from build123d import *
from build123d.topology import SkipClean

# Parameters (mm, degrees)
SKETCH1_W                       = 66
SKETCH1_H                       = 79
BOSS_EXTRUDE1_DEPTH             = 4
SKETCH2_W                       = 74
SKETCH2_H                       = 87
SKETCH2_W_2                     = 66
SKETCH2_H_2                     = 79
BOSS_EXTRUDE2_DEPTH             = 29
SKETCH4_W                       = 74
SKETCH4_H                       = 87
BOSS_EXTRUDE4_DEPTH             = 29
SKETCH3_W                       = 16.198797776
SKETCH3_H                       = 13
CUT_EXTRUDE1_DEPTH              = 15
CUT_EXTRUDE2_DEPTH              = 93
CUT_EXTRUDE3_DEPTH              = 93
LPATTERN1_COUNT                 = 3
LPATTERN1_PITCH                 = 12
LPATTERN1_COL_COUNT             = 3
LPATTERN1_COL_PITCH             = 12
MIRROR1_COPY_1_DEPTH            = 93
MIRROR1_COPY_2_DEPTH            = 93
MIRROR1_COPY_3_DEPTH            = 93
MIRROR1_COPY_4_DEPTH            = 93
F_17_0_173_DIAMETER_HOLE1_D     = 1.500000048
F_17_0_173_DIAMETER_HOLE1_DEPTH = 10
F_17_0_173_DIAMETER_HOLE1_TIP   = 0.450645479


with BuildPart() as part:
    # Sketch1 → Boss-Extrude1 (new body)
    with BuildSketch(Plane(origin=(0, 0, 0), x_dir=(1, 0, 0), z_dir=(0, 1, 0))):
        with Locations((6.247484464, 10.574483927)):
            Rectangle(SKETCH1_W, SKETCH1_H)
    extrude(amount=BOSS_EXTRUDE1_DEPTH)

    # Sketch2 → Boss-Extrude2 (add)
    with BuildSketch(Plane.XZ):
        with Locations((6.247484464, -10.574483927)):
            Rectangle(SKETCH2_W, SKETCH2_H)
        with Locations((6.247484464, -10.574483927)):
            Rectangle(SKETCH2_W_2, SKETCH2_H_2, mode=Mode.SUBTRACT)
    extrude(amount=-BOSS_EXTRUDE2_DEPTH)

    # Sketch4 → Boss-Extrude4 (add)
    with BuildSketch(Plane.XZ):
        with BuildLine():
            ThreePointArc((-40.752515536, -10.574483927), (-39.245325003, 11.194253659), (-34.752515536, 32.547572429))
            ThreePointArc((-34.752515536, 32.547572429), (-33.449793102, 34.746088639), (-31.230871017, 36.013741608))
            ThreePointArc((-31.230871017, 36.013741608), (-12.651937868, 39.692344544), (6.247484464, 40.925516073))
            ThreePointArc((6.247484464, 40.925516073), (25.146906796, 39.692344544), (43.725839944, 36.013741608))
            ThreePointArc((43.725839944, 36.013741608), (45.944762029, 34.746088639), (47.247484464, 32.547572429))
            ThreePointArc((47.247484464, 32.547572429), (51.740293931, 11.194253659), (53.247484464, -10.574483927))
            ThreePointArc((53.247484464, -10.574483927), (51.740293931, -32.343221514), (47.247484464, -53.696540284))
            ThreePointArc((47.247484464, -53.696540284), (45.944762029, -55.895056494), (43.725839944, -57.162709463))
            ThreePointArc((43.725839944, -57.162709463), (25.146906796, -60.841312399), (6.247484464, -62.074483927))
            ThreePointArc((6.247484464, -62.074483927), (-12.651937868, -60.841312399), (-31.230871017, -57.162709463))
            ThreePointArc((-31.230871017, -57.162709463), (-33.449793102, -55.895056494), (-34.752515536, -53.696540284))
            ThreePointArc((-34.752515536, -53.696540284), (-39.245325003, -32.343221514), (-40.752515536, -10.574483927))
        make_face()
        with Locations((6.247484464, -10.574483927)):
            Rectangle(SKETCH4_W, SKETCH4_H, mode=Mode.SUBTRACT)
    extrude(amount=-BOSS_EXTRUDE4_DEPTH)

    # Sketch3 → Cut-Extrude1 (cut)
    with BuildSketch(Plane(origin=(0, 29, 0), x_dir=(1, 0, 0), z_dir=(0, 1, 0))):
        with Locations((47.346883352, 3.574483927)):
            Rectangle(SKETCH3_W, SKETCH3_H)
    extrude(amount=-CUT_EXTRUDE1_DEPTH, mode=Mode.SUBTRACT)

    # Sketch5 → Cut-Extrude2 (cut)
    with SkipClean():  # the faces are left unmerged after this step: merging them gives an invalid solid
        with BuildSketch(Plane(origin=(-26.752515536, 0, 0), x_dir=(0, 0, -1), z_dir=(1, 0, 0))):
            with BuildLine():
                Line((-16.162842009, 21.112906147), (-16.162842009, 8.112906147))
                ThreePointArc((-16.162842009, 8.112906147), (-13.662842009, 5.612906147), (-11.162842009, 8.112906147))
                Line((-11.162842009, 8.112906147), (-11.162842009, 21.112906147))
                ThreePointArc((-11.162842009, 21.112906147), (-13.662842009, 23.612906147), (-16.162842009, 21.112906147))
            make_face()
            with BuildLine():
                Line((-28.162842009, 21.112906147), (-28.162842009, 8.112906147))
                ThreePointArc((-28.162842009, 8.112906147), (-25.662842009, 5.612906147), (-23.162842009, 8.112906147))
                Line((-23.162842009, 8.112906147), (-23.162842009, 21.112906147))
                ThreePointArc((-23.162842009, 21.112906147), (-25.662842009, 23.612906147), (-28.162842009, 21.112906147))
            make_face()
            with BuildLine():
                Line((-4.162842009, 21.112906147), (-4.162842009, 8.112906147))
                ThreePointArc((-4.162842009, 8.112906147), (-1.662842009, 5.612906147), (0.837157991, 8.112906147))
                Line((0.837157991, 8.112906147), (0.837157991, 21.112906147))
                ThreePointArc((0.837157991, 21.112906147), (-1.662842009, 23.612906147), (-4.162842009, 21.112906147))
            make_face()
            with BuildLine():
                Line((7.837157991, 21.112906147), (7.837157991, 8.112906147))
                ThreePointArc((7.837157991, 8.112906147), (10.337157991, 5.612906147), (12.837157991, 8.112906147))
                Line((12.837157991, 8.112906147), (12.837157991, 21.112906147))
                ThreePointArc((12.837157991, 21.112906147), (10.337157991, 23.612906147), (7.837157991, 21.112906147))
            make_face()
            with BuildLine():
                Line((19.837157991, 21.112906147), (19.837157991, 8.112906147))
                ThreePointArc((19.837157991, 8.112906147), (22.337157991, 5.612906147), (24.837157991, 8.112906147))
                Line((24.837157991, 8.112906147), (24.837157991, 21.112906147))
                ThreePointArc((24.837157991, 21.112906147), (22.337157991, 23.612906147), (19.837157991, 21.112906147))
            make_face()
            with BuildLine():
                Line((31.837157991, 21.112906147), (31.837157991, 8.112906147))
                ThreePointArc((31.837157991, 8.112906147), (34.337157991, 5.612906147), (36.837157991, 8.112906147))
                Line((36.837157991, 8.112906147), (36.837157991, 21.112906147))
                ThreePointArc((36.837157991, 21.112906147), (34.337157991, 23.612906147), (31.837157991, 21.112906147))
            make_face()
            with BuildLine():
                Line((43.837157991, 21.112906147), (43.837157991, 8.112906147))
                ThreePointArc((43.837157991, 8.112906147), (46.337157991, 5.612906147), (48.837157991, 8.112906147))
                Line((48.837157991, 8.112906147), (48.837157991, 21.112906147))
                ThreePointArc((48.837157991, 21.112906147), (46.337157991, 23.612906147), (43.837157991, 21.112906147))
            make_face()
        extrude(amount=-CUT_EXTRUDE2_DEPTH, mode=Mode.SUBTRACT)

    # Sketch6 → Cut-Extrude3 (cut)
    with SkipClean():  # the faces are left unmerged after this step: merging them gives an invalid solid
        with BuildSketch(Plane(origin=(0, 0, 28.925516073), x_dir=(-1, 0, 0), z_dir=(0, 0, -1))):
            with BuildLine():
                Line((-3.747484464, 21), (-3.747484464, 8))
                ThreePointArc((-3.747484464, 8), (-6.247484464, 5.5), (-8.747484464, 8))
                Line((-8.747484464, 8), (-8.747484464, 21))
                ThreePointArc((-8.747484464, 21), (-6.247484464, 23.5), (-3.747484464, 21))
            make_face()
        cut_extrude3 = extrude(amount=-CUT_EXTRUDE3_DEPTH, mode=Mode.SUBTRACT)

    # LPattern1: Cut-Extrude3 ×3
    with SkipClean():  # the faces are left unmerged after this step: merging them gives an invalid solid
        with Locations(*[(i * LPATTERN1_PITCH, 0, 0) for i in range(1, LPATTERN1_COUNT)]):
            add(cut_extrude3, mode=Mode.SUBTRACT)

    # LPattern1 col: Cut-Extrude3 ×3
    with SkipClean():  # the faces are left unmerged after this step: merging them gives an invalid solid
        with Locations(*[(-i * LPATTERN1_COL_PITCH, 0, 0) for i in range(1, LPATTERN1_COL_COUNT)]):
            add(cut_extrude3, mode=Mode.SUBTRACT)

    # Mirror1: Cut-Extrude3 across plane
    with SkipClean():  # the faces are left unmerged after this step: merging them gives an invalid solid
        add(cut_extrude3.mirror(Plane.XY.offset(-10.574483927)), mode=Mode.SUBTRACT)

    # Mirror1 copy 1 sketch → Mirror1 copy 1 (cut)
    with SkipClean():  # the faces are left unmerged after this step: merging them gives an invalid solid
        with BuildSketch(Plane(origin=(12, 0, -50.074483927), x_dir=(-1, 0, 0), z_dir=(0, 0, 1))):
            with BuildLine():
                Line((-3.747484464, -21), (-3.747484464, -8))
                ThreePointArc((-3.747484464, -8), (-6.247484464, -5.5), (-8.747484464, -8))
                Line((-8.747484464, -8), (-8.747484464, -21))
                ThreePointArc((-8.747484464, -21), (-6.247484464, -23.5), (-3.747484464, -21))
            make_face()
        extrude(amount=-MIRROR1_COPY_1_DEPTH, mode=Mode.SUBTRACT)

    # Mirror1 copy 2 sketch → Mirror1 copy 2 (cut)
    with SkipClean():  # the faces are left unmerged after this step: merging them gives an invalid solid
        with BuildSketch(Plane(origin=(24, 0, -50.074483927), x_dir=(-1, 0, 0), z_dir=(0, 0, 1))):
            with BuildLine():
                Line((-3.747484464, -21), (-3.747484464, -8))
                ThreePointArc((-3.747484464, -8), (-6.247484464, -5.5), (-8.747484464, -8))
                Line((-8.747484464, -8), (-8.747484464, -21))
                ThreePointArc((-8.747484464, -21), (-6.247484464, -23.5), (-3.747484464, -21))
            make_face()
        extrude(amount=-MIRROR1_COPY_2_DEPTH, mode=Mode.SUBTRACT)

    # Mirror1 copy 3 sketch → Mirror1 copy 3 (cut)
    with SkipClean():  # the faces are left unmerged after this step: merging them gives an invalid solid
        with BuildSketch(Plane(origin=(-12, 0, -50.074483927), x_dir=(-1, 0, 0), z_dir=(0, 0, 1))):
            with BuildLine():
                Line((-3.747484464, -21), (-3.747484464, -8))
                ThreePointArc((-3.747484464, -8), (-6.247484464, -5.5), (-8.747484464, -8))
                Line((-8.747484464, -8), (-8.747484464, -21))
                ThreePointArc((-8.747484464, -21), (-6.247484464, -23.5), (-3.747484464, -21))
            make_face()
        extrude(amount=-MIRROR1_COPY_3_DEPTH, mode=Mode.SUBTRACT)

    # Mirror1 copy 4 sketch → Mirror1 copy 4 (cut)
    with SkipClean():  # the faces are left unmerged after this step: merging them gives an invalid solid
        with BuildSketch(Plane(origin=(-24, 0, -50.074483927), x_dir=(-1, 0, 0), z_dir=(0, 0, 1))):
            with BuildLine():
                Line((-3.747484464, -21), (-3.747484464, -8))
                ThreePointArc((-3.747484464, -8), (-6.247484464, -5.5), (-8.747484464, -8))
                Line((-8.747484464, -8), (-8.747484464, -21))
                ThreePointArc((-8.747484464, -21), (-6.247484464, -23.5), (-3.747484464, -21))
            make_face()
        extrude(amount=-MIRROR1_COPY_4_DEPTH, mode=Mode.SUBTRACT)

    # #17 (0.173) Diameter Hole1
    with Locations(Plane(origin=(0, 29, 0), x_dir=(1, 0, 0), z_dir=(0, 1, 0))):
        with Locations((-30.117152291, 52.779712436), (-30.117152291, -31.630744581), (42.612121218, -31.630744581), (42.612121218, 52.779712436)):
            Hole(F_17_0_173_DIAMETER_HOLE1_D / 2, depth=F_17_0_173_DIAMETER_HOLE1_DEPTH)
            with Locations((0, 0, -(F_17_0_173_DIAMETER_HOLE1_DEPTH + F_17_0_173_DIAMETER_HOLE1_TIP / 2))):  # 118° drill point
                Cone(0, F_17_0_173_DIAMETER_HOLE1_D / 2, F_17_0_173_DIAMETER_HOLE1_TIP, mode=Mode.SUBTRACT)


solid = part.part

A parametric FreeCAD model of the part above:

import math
import FreeCAD as App
import Part
import Sketcher

V = App.Vector

doc = App.newDocument("Part")
body = doc.addObject("PartDesign::Body", "Body")

sketch1 = body.newObject("Sketcher::SketchObject", "Sketch")
sketch1.AttachmentSupport = (doc.getObject("XZ_Plane"), [""])
sketch1.MapMode = "FlatFace"
sketch1.addGeometry([
    Part.LineSegment(V(-26.752516, -50.074484, 0), V(-26.752516, 28.925516, 0)),
    Part.LineSegment(V(-26.752516, 28.925516, 0), V(39.247484, 28.925516, 0)),
    Part.LineSegment(V(39.247484, 28.925516, 0), V(39.247484, -50.074484, 0)),
    Part.LineSegment(V(39.247484, -50.074484, 0), V(-26.752516, -50.074484, 0)),
], False)
sketch1.addConstraint([
    Sketcher.Constraint("Coincident", 0, 2, 1, 1),
    Sketcher.Constraint("Coincident", 1, 2, 2, 1),
    Sketcher.Constraint("Coincident", 2, 2, 3, 1),
    Sketcher.Constraint("Coincident", 3, 2, 0, 1),
    Sketcher.Constraint("Vertical", 0),
    Sketcher.Constraint("Horizontal", 1),
    Sketcher.Constraint("Vertical", 2),
    Sketcher.Constraint("Horizontal", 3),
    Sketcher.Constraint("DistanceX", 1, 1, 1, 2, 66.0),
    Sketcher.Constraint("DistanceY", 0, 1, 0, 2, 79.0),
    Sketcher.Constraint("DistanceX", 0, 2, -1, 1, 26.752516),
    Sketcher.Constraint("DistanceY", -1, 1, 0, 2, 28.925516),
])
pad1 = body.newObject("PartDesign::Pad", "Pad")
pad1.Profile = sketch1
pad1.Length = 4
pad1.Reversed = True

sketch2 = body.newObject("Sketcher::SketchObject", "Sketch001")
sketch2.AttachmentSupport = (doc.getObject("XZ_Plane"), [""])
sketch2.MapMode = "FlatFace"
sketch2.addGeometry([
    Part.LineSegment(V(-30.752516, 32.925516, 0), V(-30.752516, -54.074484, 0)),
    Part.LineSegment(V(-30.752516, -54.074484, 0), V(43.247484, -54.074484, 0)),
    Part.LineSegment(V(43.247484, -54.074484, 0), V(43.247484, 32.925516, 0)),
    Part.LineSegment(V(43.247484, 32.925516, 0), V(-30.752516, 32.925516, 0)),
    Part.LineSegment(V(39.247484, -50.074484, 0), V(-26.752516, -50.074484, 0)),
    Part.LineSegment(V(-26.752516, -50.074484, 0), V(-26.752516, 28.925516, 0)),
    Part.LineSegment(V(-26.752516, 28.925516, 0), V(39.247484, 28.925516, 0)),
    Part.LineSegment(V(39.247484, 28.925516, 0), V(39.247484, -50.074484, 0)),
], False)
sketch2.addConstraint([
    Sketcher.Constraint("Coincident", 0, 2, 1, 1),
    Sketcher.Constraint("Coincident", 1, 2, 2, 1),
    Sketcher.Constraint("Coincident", 2, 2, 3, 1),
    Sketcher.Constraint("Coincident", 3, 2, 0, 1),
    Sketcher.Constraint("Coincident", 4, 2, 5, 1),
    Sketcher.Constraint("Coincident", 5, 2, 6, 1),
    Sketcher.Constraint("Coincident", 6, 2, 7, 1),
    Sketcher.Constraint("Coincident", 7, 2, 4, 1),
    Sketcher.Constraint("Vertical", 0),
    Sketcher.Constraint("Horizontal", 1),
    Sketcher.Constraint("Vertical", 2),
    Sketcher.Constraint("Horizontal", 3),
    Sketcher.Constraint("Horizontal", 4),
    Sketcher.Constraint("Vertical", 5),
    Sketcher.Constraint("Horizontal", 6),
    Sketcher.Constraint("Vertical", 7),
    Sketcher.Constraint("DistanceX", 1, 1, 1, 2, 74.0),
    Sketcher.Constraint("DistanceX", 4, 2, 4, 1, 66.0),
    Sketcher.Constraint("DistanceY", 0, 2, 0, 1, 87.0),
    Sketcher.Constraint("DistanceY", 5, 1, 5, 2, 79.0),
    Sketcher.Constraint("DistanceX", 0, 2, 4, 2, 4.0),
    Sketcher.Constraint("DistanceY", 0, 2, 4, 2, 4.0),
    Sketcher.Constraint("DistanceX", 0, 2, -1, 1, 30.752516),
    Sketcher.Constraint("DistanceY", 0, 2, -1, 1, 54.074484),
])
pad2 = body.newObject("PartDesign::Pad", "Pad001")
pad2.Profile = sketch2
pad2.Length = 29
pad2.Reversed = True

sketch3 = body.newObject("Sketcher::SketchObject", "Sketch002")
sketch3.AttachmentSupport = (doc.getObject("XZ_Plane"), [""])
sketch3.MapMode = "FlatFace"
sketch3.addGeometry([
    Part.ArcOfCircle(Part.Circle(V(117.206796, -10.574484, 0), V(0, 0, 1), 157.959312), math.radians(164.157453), math.radians(180)),
    Part.ArcOfCircle(Part.Circle(V(117.206796, -10.574484, 0), V(0, 0, 1), 157.959312), math.radians(180), math.radians(195.842547)),
    Part.ArcOfCircle(Part.Circle(V(-29.942438, -52.331567, 0), V(0, 0, 1), 5), math.radians(-164.157453), math.radians(-104.932839)),
    Part.ArcOfCircle(Part.Circle(V(6.247484, 83.367114, 0), V(0, 0, 1), 145.441598), math.radians(-104.932839), math.radians(-90)),
    Part.ArcOfCircle(Part.Circle(V(6.247484, 83.367114, 0), V(0, 0, 1), 145.441598), math.radians(-90), math.radians(-75.067161)),
    Part.ArcOfCircle(Part.Circle(V(42.437407, -52.331567, 0), V(0, 0, 1), 5), math.radians(-75.067161), math.radians(-15.842548)),
    Part.ArcOfCircle(Part.Circle(V(-104.711828, -10.574484, 0), V(0, 0, 1), 157.959312), math.radians(-15.842547), math.radians(0)),
    Part.ArcOfCircle(Part.Circle(V(-104.711828, -10.574484, 0), V(0, 0, 1), 157.959312), math.radians(0), math.radians(15.842547)),
    Part.ArcOfCircle(Part.Circle(V(42.437407, 31.182599, 0), V(0, 0, 1), 5), math.radians(15.842548), math.radians(75.067161)),
    Part.ArcOfCircle(Part.Circle(V(6.247484, -104.516082, 0), V(0, 0, 1), 145.441598), math.radians(75.067161), math.radians(90)),
    Part.ArcOfCircle(Part.Circle(V(6.247484, -104.516082, 0), V(0, 0, 1), 145.441598), math.radians(90), math.radians(104.932839)),
    Part.ArcOfCircle(Part.Circle(V(-29.942438, 31.182599, 0), V(0, 0, 1), 5), math.radians(104.932839), math.radians(164.157453)),
    Part.LineSegment(V(-30.752516, -54.074484, 0), V(-30.752516, 32.925516, 0)),
    Part.LineSegment(V(-30.752516, 32.925516, 0), V(43.247484, 32.925516, 0)),
    Part.LineSegment(V(43.247484, 32.925516, 0), V(43.247484, -54.074484, 0)),
    Part.LineSegment(V(43.247484, -54.074484, 0), V(-30.752516, -54.074484, 0)),
], False)
sketch3.addConstraint([
    Sketcher.Constraint("Tangent", 0, 2, 1, 1),
    Sketcher.Constraint("Tangent", 1, 2, 2, 1),
    Sketcher.Constraint("Tangent", 2, 2, 3, 1),
    Sketcher.Constraint("Tangent", 3, 2, 4, 1),
    Sketcher.Constraint("Tangent", 4, 2, 5, 1),
    Sketcher.Constraint("Tangent", 5, 2, 6, 1),
    Sketcher.Constraint("Tangent", 6, 2, 7, 1),
    Sketcher.Constraint("Tangent", 7, 2, 8, 1),
    Sketcher.Constraint("Tangent", 8, 2, 9, 1),
    Sketcher.Constraint("Tangent", 9, 2, 10, 1),
    Sketcher.Constraint("Tangent", 10, 2, 11, 1),
    Sketcher.Constraint("Tangent", 11, 2, 0, 1),
    Sketcher.Constraint("Coincident", 12, 2, 13, 1),
    Sketcher.Constraint("Coincident", 13, 2, 14, 1),
    Sketcher.Constraint("Coincident", 14, 2, 15, 1),
    Sketcher.Constraint("Coincident", 15, 2, 12, 1),
    Sketcher.Constraint("Vertical", 12),
    Sketcher.Constraint("Horizontal", 13),
    Sketcher.Constraint("Vertical", 14),
    Sketcher.Constraint("Horizontal", 15),
    Sketcher.Constraint("Equal", 0, 1),
    Sketcher.Constraint("Equal", 3, 4),
    Sketcher.Constraint("Equal", 2, 5),
    Sketcher.Constraint("Equal", 1, 6),
    Sketcher.Constraint("Equal", 6, 7),
    Sketcher.Constraint("Equal", 5, 8),
    Sketcher.Constraint("Equal", 4, 9),
    Sketcher.Constraint("Equal", 9, 10),
    Sketcher.Constraint("Equal", 8, 11),
    Sketcher.Constraint("Horizontal", 2, 3, 5, 3),
    Sketcher.Constraint("Horizontal", 1, 3, 6, 3),
    Sketcher.Constraint("Horizontal", 8, 3, 11, 3),
    Sketcher.Constraint("Horizontal", 7, 3, 0, 2),
    Sketcher.Constraint("Horizontal", 0, 2, 6, 2),
    Sketcher.Constraint("Vertical", 5, 3, 8, 3),
    Sketcher.Constraint("Vertical", 10, 3, 3, 2),
    Sketcher.Constraint("Vertical", 3, 2, 9, 2),
    Sketcher.Constraint("Radius", 2, 5.0),
    Sketcher.Constraint("DistanceX", 13, 1, 13, 2, 74.0),
    Sketcher.Constraint("DistanceY", 12, 1, 12, 2, 87.0),
    Sketcher.Constraint("DistanceX", 0, 2, 1, 2, 6.0),
    Sketcher.Constraint("DistanceX", 1, 2, 9, 3, 41.0),
    Sketcher.Constraint("DistanceX", 11, 2, 12, 2, 4.0),
    Sketcher.Constraint("DistanceY", 12, 2, 9, 2, 8.0),
    Sketcher.Constraint("DistanceY", 3, 2, 14, 2, 8.0),
    Sketcher.Constraint("Radius", 3, 145.441598),
    Sketcher.Constraint("DistanceY", -1, 1, 8, 3, 31.182599),
    Sketcher.Constraint("DistanceX", 2, 2, -1, 1, 31.230871),
])
pad3 = body.newObject("PartDesign::Pad", "Pad002")
pad3.Profile = sketch3
pad3.Length = 29
pad3.Reversed = True

sketch4 = body.newObject("Sketcher::SketchObject", "Sketch003")
sketch4.AttachmentSupport = (doc.getObject("XZ_Plane"), [""])
sketch4.MapMode = "FlatFace"
sketch4.AttachmentOffset = App.Placement(V(0, 0, -29), App.Rotation())
sketch4.addGeometry([
    Part.LineSegment(V(39.247484, -10.074484, 0), V(39.247484, 2.925516, 0)),
    Part.LineSegment(V(39.247484, 2.925516, 0), V(55.446282, 2.925516, 0)),
    Part.LineSegment(V(55.446282, 2.925516, 0), V(55.446282, -10.074484, 0)),
    Part.LineSegment(V(55.446282, -10.074484, 0), V(39.247484, -10.074484, 0)),
], False)
sketch4.addConstraint([
    Sketcher.Constraint("Coincident", 0, 2, 1, 1),
    Sketcher.Constraint("Coincident", 1, 2, 2, 1),
    Sketcher.Constraint("Coincident", 2, 2, 3, 1),
    Sketcher.Constraint("Coincident", 3, 2, 0, 1),
    Sketcher.Constraint("Vertical", 0),
    Sketcher.Constraint("Horizontal", 1),
    Sketcher.Constraint("Vertical", 2),
    Sketcher.Constraint("Horizontal", 3),
    Sketcher.Constraint("DistanceY", 0, 1, 0, 2, 13.0),
    Sketcher.Constraint("DistanceX", 1, 1, 1, 2, 16.198798),
    Sketcher.Constraint("DistanceX", -1, 1, 0, 2, 39.247484),
    Sketcher.Constraint("DistanceY", -1, 1, 0, 2, 2.925516),
])
pocket1 = body.newObject("PartDesign::Pocket", "Pocket")
pocket1.Profile = sketch4
pocket1.Length = 15
pocket1.Reversed = True

sketch5 = body.newObject("Sketcher::SketchObject", "Sketch004")
sketch5.AttachmentSupport = (doc.getObject("YZ_Plane"), [""])
sketch5.MapMode = "FlatFace"
sketch5.AttachmentOffset = App.Placement(V(0, 0, -26.752516), App.Rotation())
sketch5.addGeometry([
    Part.LineSegment(V(21.112906, 16.162842, 0), V(8.112906, 16.162842, 0)),
    Part.ArcOfCircle(Part.Circle(V(8.112906, 13.662842, 0), V(0, 0, 1), 2.5), math.radians(90), math.radians(270)),
    Part.LineSegment(V(8.112906, 11.162842, 0), V(21.112906, 11.162842, 0)),
    Part.ArcOfCircle(Part.Circle(V(21.112906, 13.662842, 0), V(0, 0, 1), 2.5), math.radians(-90), math.radians(90)),
    Part.LineSegment(V(21.112906, 28.162842, 0), V(8.112906, 28.162842, 0)),
    Part.ArcOfCircle(Part.Circle(V(8.112906, 25.662842, 0), V(0, 0, 1), 2.5), math.radians(90), math.radians(270)),
    Part.LineSegment(V(8.112906, 23.162842, 0), V(21.112906, 23.162842, 0)),
    Part.ArcOfCircle(Part.Circle(V(21.112906, 25.662842, 0), V(0, 0, 1), 2.5), math.radians(-90), math.radians(90)),
    Part.LineSegment(V(21.112906, 4.162842, 0), V(8.112906, 4.162842, 0)),
    Part.ArcOfCircle(Part.Circle(V(8.112906, 1.662842, 0), V(0, 0, 1), 2.5), math.radians(90), math.radians(270)),
    Part.LineSegment(V(8.112906, -0.837158, 0), V(21.112906, -0.837158, 0)),
    Part.ArcOfCircle(Part.Circle(V(21.112906, 1.662842, 0), V(0, 0, 1), 2.5), math.radians(-90), math.radians(90)),
    Part.LineSegment(V(21.112906, -7.837158, 0), V(8.112906, -7.837158, 0)),
    Part.ArcOfCircle(Part.Circle(V(8.112906, -10.337158, 0), V(0, 0, 1), 2.5), math.radians(90), math.radians(270)),
    Part.LineSegment(V(8.112906, -12.837158, 0), V(21.112906, -12.837158, 0)),
    Part.ArcOfCircle(Part.Circle(V(21.112906, -10.337158, 0), V(0, 0, 1), 2.5), math.radians(-90), math.radians(90)),
    Part.LineSegment(V(21.112906, -19.837158, 0), V(8.112906, -19.837158, 0)),
    Part.ArcOfCircle(Part.Circle(V(8.112906, -22.337158, 0), V(0, 0, 1), 2.5), math.radians(90), math.radians(270)),
    Part.LineSegment(V(8.112906, -24.837158, 0), V(21.112906, -24.837158, 0)),
    Part.ArcOfCircle(Part.Circle(V(21.112906, -22.337158, 0), V(0, 0, 1), 2.5), math.radians(-90), math.radians(90)),
    Part.LineSegment(V(21.112906, -31.837158, 0), V(8.112906, -31.837158, 0)),
    Part.ArcOfCircle(Part.Circle(V(8.112906, -34.337158, 0), V(0, 0, 1), 2.5), math.radians(90), math.radians(270)),
    Part.LineSegment(V(8.112906, -36.837158, 0), V(21.112906, -36.837158, 0)),
    Part.ArcOfCircle(Part.Circle(V(21.112906, -34.337158, 0), V(0, 0, 1), 2.5), math.radians(-90), math.radians(90)),
    Part.LineSegment(V(21.112906, -43.837158, 0), V(8.112906, -43.837158, 0)),
    Part.ArcOfCircle(Part.Circle(V(8.112906, -46.337158, 0), V(0, 0, 1), 2.5), math.radians(90), math.radians(270)),
    Part.LineSegment(V(8.112906, -48.837158, 0), V(21.112906, -48.837158, 0)),
    Part.ArcOfCircle(Part.Circle(V(21.112906, -46.337158, 0), V(0, 0, 1), 2.5), math.radians(-90), math.radians(90)),
], False)
sketch5.addConstraint([
    Sketcher.Constraint("Tangent", 0, 2, 1, 1),
    Sketcher.Constraint("Tangent", 1, 2, 2, 1),
    Sketcher.Constraint("Tangent", 2, 2, 3, 1),
    Sketcher.Constraint("Tangent", 3, 2, 0, 1),
    Sketcher.Constraint("Tangent", 4, 2, 5, 1),
    Sketcher.Constraint("Tangent", 5, 2, 6, 1),
    Sketcher.Constraint("Tangent", 6, 2, 7, 1),
    Sketcher.Constraint("Tangent", 7, 2, 4, 1),
    Sketcher.Constraint("Tangent", 8, 2, 9, 1),
    Sketcher.Constraint("Tangent", 9, 2, 10, 1),
    Sketcher.Constraint("Tangent", 10, 2, 11, 1),
    Sketcher.Constraint("Tangent", 11, 2, 8, 1),
    Sketcher.Constraint("Tangent", 12, 2, 13, 1),
    Sketcher.Constraint("Tangent", 13, 2, 14, 1),
    Sketcher.Constraint("Tangent", 14, 2, 15, 1),
    Sketcher.Constraint("Tangent", 15, 2, 12, 1),
    Sketcher.Constraint("Tangent", 16, 2, 17, 1),
    Sketcher.Constraint("Tangent", 17, 2, 18, 1),
    Sketcher.Constraint("Tangent", 18, 2, 19, 1),
    Sketcher.Constraint("Tangent", 19, 2, 16, 1),
    Sketcher.Constraint("Tangent", 20, 2, 21, 1),
    Sketcher.Constraint("Tangent", 21, 2, 22, 1),
    Sketcher.Constraint("Tangent", 22, 2, 23, 1),
    Sketcher.Constraint("Tangent", 23, 2, 20, 1),
    Sketcher.Constraint("Tangent", 24, 2, 25, 1),
    Sketcher.Constraint("Tangent", 25, 2, 26, 1),
    Sketcher.Constraint("Tangent", 26, 2, 27, 1),
    Sketcher.Constraint("Tangent", 27, 2, 24, 1),
    Sketcher.Constraint("Horizontal", 0),
    Sketcher.Constraint("Horizontal", 2),
    Sketcher.Constraint("Horizontal", 4),
    Sketcher.Constraint("Horizontal", 6),
    Sketcher.Constraint("Horizontal", 8),
    Sketcher.Constraint("Horizontal", 10),
    Sketcher.Constraint("Horizontal", 12),
    Sketcher.Constraint("Horizontal", 14),
    Sketcher.Constraint("Horizontal", 16),
    Sketcher.Constraint("Horizontal", 18),
    Sketcher.Constraint("Horizontal", 20),
    Sketcher.Constraint("Horizontal", 22),
    Sketcher.Constraint("Horizontal", 24),
    Sketcher.Constraint("Horizontal", 26),
    Sketcher.Constraint("Equal", 3, 5),
    Sketcher.Constraint("Equal", 7, 9),
    Sketcher.Constraint("Equal", 11, 13),
    Sketcher.Constraint("Equal", 15, 17),
    Sketcher.Constraint("Equal", 19, 21),
    Sketcher.Constraint("Equal", 23, 25),
    Sketcher.Constraint("Vertical", 1, 3, 5, 3),
    Sketcher.Constraint("Vertical", 3, 3, 7, 3),
    Sketcher.Constraint("Vertical", 5, 3, 9, 3),
    Sketcher.Constraint("Vertical", 7, 3, 11, 3),
    Sketcher.Constraint("Vertical", 9, 3, 13, 3),
    Sketcher.Constraint("Vertical", 11, 3, 15, 3),
    Sketcher.Constraint("Vertical", 13, 3, 17, 3),
    Sketcher.Constraint("Vertical", 15, 3, 19, 3),
    Sketcher.Constraint("Vertical", 17, 3, 21, 3),
    Sketcher.Constraint("Vertical", 19, 3, 23, 3),
    Sketcher.Constraint("Vertical", 21, 3, 25, 3),
    Sketcher.Constraint("Vertical", 23, 3, 27, 3),
    Sketcher.Constraint("Radius", 1, 2.5),
    Sketcher.Constraint("DistanceX", 0, 2, 0, 1, 13.0),
    Sketcher.Constraint("DistanceY", 1, 3, 5, 3, 12.0),
    Sketcher.Constraint("DistanceY", 9, 3, 1, 3, 12.0),
    Sketcher.Constraint("DistanceY", 13, 3, 9, 3, 12.0),
    Sketcher.Constraint("DistanceY", 17, 3, 13, 3, 12.0),
    Sketcher.Constraint("DistanceY", 21, 3, 17, 3, 12.0),
    Sketcher.Constraint("DistanceY", 25, 3, 21, 3, 12.0),
    Sketcher.Constraint("DistanceX", -1, 1, 1, 3, 8.112906),
    Sketcher.Constraint("DistanceY", -1, 1, 1, 3, 13.662842),
])
pocket2 = body.newObject("PartDesign::Pocket", "Pocket001")
pocket2.Profile = sketch5
pocket2.Length = 93

sketch6 = body.newObject("Sketcher::SketchObject", "Sketch005")
sketch6.AttachmentSupport = (doc.getObject("XY_Plane"), [""])
sketch6.MapMode = "FlatFace"
sketch6.AttachmentOffset = App.Placement(V(0, 0, 28.925516), App.Rotation())
sketch6.addGeometry([
    Part.LineSegment(V(3.747484, 8, 0), V(3.747484, 21, 0)),
    Part.ArcOfCircle(Part.Circle(V(6.247484, 21, 0), V(0, 0, 1), 2.5), math.radians(0), math.radians(180)),
    Part.LineSegment(V(8.747484, 21, 0), V(8.747484, 8, 0)),
    Part.ArcOfCircle(Part.Circle(V(6.247484, 8, 0), V(0, 0, 1), 2.5), math.radians(180), math.radians(360)),
], False)
sketch6.addConstraint([
    Sketcher.Constraint("Tangent", 0, 2, 1, 2),
    Sketcher.Constraint("Tangent", 1, 1, 2, 1),
    Sketcher.Constraint("Tangent", 2, 2, 3, 2),
    Sketcher.Constraint("Tangent", 3, 1, 0, 1),
    Sketcher.Constraint("Vertical", 0),
    Sketcher.Constraint("Vertical", 2),
    Sketcher.Constraint("Radius", 1, 2.5),
    Sketcher.Constraint("DistanceY", 0, 1, 0, 2, 13.0),
    Sketcher.Constraint("DistanceY", -1, 1, 1, 3, 21.0),
    Sketcher.Constraint("DistanceX", -1, 1, 1, 3, 6.247484),
])
pocket3 = body.newObject("PartDesign::Pocket", "Pocket002")
pocket3.Profile = sketch6
pocket3.Length = 93
pocket3.Reversed = True
doc.recompute()

linearpattern = body.newObject("PartDesign::LinearPattern", "LinearPattern")
linearpattern.Originals = [pocket3]
linearpattern.Direction = (doc.getObject("X_Axis"), [""])
linearpattern.Mode = "offset"
linearpattern.Offset = 12
linearpattern.Occurrences = 3
body.Tip = linearpattern
doc.recompute()

linearpattern2 = body.newObject("PartDesign::LinearPattern", "LinearPattern001")
linearpattern2.Originals = [pocket3]
linearpattern2.Direction = (doc.getObject("X_Axis"), [""])
linearpattern2.Mode = "offset"
linearpattern2.Offset = 12
linearpattern2.Occurrences = 3
linearpattern2.Reversed = True
body.Tip = linearpattern2
doc.recompute()

datumplane = body.newObject("PartDesign::Plane", "DatumPlane")
datumplane.AttachmentSupport = (doc.getObject("XY_Plane"), [""])
datumplane.MapMode = "FlatFace"
datumplane.AttachmentOffset = App.Placement(V(0, 0, -10.574484), App.Rotation())
mirrored = body.newObject("PartDesign::Mirrored", "Mirrored")
mirrored.Originals = [pocket3]
mirrored.MirrorPlane = (datumplane, [""])
body.Tip = mirrored

sketch7 = body.newObject("Sketcher::SketchObject", "Sketch006")
sketch7.AttachmentSupport = (doc.getObject("XY_Plane"), [""])
sketch7.MapMode = "FlatFace"
sketch7.AttachmentOffset = App.Placement(V(0, 0, -50.074484), App.Rotation())
sketch7.addGeometry([
    Part.LineSegment(V(15.747484, 21, 0), V(15.747484, 8, 0)),
    Part.ArcOfCircle(Part.Circle(V(18.247484, 8, 0), V(0, 0, 1), 2.5), math.radians(180), math.radians(360)),
    Part.LineSegment(V(20.747484, 8, 0), V(20.747484, 21, 0)),
    Part.ArcOfCircle(Part.Circle(V(18.247484, 21, 0), V(0, 0, 1), 2.5), math.radians(0), math.radians(180)),
], False)
sketch7.addConstraint([
    Sketcher.Constraint("Tangent", 0, 2, 1, 1),
    Sketcher.Constraint("Tangent", 1, 2, 2, 1),
    Sketcher.Constraint("Tangent", 2, 2, 3, 1),
    Sketcher.Constraint("Tangent", 3, 2, 0, 1),
    Sketcher.Constraint("Vertical", 0),
    Sketcher.Constraint("Vertical", 2),
    Sketcher.Constraint("Radius", 1, 2.5),
    Sketcher.Constraint("DistanceY", 0, 2, 0, 1, 13.0),
    Sketcher.Constraint("DistanceY", -1, 1, 1, 3, 8.0),
    Sketcher.Constraint("DistanceX", -1, 1, 1, 3, 18.247484),
])
pocket4 = body.newObject("PartDesign::Pocket", "Pocket003")
pocket4.Profile = sketch7
pocket4.Length = 93

sketch8 = body.newObject("Sketcher::SketchObject", "Sketch007")
sketch8.AttachmentSupport = (doc.getObject("XY_Plane"), [""])
sketch8.MapMode = "FlatFace"
sketch8.AttachmentOffset = App.Placement(V(0, 0, -50.074484), App.Rotation())
sketch8.addGeometry([
    Part.LineSegment(V(27.747484, 21, 0), V(27.747484, 8, 0)),
    Part.ArcOfCircle(Part.Circle(V(30.247484, 8, 0), V(0, 0, 1), 2.5), math.radians(180), math.radians(360)),
    Part.LineSegment(V(32.747484, 8, 0), V(32.747484, 21, 0)),
    Part.ArcOfCircle(Part.Circle(V(30.247484, 21, 0), V(0, 0, 1), 2.5), math.radians(0), math.radians(180)),
], False)
sketch8.addConstraint([
    Sketcher.Constraint("Tangent", 0, 2, 1, 1),
    Sketcher.Constraint("Tangent", 1, 2, 2, 1),
    Sketcher.Constraint("Tangent", 2, 2, 3, 1),
    Sketcher.Constraint("Tangent", 3, 2, 0, 1),
    Sketcher.Constraint("Vertical", 0),
    Sketcher.Constraint("Vertical", 2),
    Sketcher.Constraint("Radius", 1, 2.5),
    Sketcher.Constraint("DistanceY", 0, 2, 0, 1, 13.0),
    Sketcher.Constraint("DistanceY", -1, 1, 1, 3, 8.0),
    Sketcher.Constraint("DistanceX", -1, 1, 1, 3, 30.247484),
])
pocket5 = body.newObject("PartDesign::Pocket", "Pocket004")
pocket5.Profile = sketch8
pocket5.Length = 93

sketch9 = body.newObject("Sketcher::SketchObject", "Sketch008")
sketch9.AttachmentSupport = (doc.getObject("XY_Plane"), [""])
sketch9.MapMode = "FlatFace"
sketch9.AttachmentOffset = App.Placement(V(0, 0, -50.074484), App.Rotation())
sketch9.addGeometry([
    Part.LineSegment(V(-8.252516, 21, 0), V(-8.252516, 8, 0)),
    Part.ArcOfCircle(Part.Circle(V(-5.752516, 8, 0), V(0, 0, 1), 2.5), math.radians(180), math.radians(360)),
    Part.LineSegment(V(-3.252516, 8, 0), V(-3.252516, 21, 0)),
    Part.ArcOfCircle(Part.Circle(V(-5.752516, 21, 0), V(0, 0, 1), 2.5), math.radians(0), math.radians(180)),
], False)
sketch9.addConstraint([
    Sketcher.Constraint("Tangent", 0, 2, 1, 1),
    Sketcher.Constraint("Tangent", 1, 2, 2, 1),
    Sketcher.Constraint("Tangent", 2, 2, 3, 1),
    Sketcher.Constraint("Tangent", 3, 2, 0, 1),
    Sketcher.Constraint("Vertical", 0),
    Sketcher.Constraint("Vertical", 2),
    Sketcher.Constraint("Radius", 1, 2.5),
    Sketcher.Constraint("DistanceY", 0, 2, 0, 1, 13.0),
    Sketcher.Constraint("DistanceY", -1, 1, 1, 3, 8.0),
    Sketcher.Constraint("DistanceX", 1, 3, -1, 1, 5.752516),
])
pocket6 = body.newObject("PartDesign::Pocket", "Pocket005")
pocket6.Profile = sketch9
pocket6.Length = 93

sketch10 = body.newObject("Sketcher::SketchObject", "Sketch009")
sketch10.AttachmentSupport = (doc.getObject("XY_Plane"), [""])
sketch10.MapMode = "FlatFace"
sketch10.AttachmentOffset = App.Placement(V(0, 0, -50.074484), App.Rotation())
sketch10.addGeometry([
    Part.LineSegment(V(-20.252516, 21, 0), V(-20.252516, 8, 0)),
    Part.ArcOfCircle(Part.Circle(V(-17.752516, 8, 0), V(0, 0, 1), 2.5), math.radians(180), math.radians(360)),
    Part.LineSegment(V(-15.252516, 8, 0), V(-15.252516, 21, 0)),
    Part.ArcOfCircle(Part.Circle(V(-17.752516, 21, 0), V(0, 0, 1), 2.5), math.radians(0), math.radians(180)),
], False)
sketch10.addConstraint([
    Sketcher.Constraint("Tangent", 0, 2, 1, 1),
    Sketcher.Constraint("Tangent", 1, 2, 2, 1),
    Sketcher.Constraint("Tangent", 2, 2, 3, 1),
    Sketcher.Constraint("Tangent", 3, 2, 0, 1),
    Sketcher.Constraint("Vertical", 0),
    Sketcher.Constraint("Vertical", 2),
    Sketcher.Constraint("Radius", 1, 2.5),
    Sketcher.Constraint("DistanceY", 0, 2, 0, 1, 13.0),
    Sketcher.Constraint("DistanceY", -1, 1, 1, 3, 8.0),
    Sketcher.Constraint("DistanceX", 1, 3, -1, 1, 17.752516),
])
pocket7 = body.newObject("PartDesign::Pocket", "Pocket006")
pocket7.Profile = sketch10
pocket7.Length = 93

sketch11 = body.newObject("Sketcher::SketchObject", "Sketch010")
sketch11.AttachmentSupport = (doc.getObject("XZ_Plane"), [""])
sketch11.MapMode = "FlatFace"
sketch11.AttachmentOffset = App.Placement(V(0, 0, -29), App.Rotation())
sketch11.addGeometry([
    Part.Circle(V(-30.117152, -52.779712, 0), V(0, 0, 1), 0.75),
    Part.Circle(V(-30.117152, 31.630745, 0), V(0, 0, 1), 0.75),
    Part.Circle(V(42.612121, 31.630745, 0), V(0, 0, 1), 0.75),
    Part.Circle(V(42.612121, -52.779712, 0), V(0, 0, 1), 0.75),
], False)
sketch11.addConstraint([
    Sketcher.Constraint("Equal", 0, 1),
    Sketcher.Constraint("Equal", 1, 2),
    Sketcher.Constraint("Equal", 2, 3),
    Sketcher.Constraint("Horizontal", 1, 3, 2, 3),
    Sketcher.Constraint("Horizontal", 0, 3, 3, 3),
    Sketcher.Constraint("Vertical", 0, 3, 1, 3),
    Sketcher.Constraint("Vertical", 2, 3, 3, 3),
    Sketcher.Constraint("Diameter", 0, 1.5),
    Sketcher.Constraint("DistanceX", -1, 1, 2, 3, 42.612121),
    Sketcher.Constraint("DistanceX", 0, 3, -1, 1, 30.117152),
    Sketcher.Constraint("DistanceY", 0, 3, -1, 1, 52.779712),
    Sketcher.Constraint("DistanceY", -1, 1, 1, 3, 31.630745),
])
doc.recompute()
hole = body.newObject("PartDesign::Hole", "Hole")
hole.Profile = sketch11
hole.ThreadType = "None"
hole.Diameter = 1.5
hole.DepthType = "Dimension"
hole.Depth = 10
hole.DrillPoint = "Angled"
hole.DrillPointAngle = 118
hole.Reversed = True

doc.recompute()
